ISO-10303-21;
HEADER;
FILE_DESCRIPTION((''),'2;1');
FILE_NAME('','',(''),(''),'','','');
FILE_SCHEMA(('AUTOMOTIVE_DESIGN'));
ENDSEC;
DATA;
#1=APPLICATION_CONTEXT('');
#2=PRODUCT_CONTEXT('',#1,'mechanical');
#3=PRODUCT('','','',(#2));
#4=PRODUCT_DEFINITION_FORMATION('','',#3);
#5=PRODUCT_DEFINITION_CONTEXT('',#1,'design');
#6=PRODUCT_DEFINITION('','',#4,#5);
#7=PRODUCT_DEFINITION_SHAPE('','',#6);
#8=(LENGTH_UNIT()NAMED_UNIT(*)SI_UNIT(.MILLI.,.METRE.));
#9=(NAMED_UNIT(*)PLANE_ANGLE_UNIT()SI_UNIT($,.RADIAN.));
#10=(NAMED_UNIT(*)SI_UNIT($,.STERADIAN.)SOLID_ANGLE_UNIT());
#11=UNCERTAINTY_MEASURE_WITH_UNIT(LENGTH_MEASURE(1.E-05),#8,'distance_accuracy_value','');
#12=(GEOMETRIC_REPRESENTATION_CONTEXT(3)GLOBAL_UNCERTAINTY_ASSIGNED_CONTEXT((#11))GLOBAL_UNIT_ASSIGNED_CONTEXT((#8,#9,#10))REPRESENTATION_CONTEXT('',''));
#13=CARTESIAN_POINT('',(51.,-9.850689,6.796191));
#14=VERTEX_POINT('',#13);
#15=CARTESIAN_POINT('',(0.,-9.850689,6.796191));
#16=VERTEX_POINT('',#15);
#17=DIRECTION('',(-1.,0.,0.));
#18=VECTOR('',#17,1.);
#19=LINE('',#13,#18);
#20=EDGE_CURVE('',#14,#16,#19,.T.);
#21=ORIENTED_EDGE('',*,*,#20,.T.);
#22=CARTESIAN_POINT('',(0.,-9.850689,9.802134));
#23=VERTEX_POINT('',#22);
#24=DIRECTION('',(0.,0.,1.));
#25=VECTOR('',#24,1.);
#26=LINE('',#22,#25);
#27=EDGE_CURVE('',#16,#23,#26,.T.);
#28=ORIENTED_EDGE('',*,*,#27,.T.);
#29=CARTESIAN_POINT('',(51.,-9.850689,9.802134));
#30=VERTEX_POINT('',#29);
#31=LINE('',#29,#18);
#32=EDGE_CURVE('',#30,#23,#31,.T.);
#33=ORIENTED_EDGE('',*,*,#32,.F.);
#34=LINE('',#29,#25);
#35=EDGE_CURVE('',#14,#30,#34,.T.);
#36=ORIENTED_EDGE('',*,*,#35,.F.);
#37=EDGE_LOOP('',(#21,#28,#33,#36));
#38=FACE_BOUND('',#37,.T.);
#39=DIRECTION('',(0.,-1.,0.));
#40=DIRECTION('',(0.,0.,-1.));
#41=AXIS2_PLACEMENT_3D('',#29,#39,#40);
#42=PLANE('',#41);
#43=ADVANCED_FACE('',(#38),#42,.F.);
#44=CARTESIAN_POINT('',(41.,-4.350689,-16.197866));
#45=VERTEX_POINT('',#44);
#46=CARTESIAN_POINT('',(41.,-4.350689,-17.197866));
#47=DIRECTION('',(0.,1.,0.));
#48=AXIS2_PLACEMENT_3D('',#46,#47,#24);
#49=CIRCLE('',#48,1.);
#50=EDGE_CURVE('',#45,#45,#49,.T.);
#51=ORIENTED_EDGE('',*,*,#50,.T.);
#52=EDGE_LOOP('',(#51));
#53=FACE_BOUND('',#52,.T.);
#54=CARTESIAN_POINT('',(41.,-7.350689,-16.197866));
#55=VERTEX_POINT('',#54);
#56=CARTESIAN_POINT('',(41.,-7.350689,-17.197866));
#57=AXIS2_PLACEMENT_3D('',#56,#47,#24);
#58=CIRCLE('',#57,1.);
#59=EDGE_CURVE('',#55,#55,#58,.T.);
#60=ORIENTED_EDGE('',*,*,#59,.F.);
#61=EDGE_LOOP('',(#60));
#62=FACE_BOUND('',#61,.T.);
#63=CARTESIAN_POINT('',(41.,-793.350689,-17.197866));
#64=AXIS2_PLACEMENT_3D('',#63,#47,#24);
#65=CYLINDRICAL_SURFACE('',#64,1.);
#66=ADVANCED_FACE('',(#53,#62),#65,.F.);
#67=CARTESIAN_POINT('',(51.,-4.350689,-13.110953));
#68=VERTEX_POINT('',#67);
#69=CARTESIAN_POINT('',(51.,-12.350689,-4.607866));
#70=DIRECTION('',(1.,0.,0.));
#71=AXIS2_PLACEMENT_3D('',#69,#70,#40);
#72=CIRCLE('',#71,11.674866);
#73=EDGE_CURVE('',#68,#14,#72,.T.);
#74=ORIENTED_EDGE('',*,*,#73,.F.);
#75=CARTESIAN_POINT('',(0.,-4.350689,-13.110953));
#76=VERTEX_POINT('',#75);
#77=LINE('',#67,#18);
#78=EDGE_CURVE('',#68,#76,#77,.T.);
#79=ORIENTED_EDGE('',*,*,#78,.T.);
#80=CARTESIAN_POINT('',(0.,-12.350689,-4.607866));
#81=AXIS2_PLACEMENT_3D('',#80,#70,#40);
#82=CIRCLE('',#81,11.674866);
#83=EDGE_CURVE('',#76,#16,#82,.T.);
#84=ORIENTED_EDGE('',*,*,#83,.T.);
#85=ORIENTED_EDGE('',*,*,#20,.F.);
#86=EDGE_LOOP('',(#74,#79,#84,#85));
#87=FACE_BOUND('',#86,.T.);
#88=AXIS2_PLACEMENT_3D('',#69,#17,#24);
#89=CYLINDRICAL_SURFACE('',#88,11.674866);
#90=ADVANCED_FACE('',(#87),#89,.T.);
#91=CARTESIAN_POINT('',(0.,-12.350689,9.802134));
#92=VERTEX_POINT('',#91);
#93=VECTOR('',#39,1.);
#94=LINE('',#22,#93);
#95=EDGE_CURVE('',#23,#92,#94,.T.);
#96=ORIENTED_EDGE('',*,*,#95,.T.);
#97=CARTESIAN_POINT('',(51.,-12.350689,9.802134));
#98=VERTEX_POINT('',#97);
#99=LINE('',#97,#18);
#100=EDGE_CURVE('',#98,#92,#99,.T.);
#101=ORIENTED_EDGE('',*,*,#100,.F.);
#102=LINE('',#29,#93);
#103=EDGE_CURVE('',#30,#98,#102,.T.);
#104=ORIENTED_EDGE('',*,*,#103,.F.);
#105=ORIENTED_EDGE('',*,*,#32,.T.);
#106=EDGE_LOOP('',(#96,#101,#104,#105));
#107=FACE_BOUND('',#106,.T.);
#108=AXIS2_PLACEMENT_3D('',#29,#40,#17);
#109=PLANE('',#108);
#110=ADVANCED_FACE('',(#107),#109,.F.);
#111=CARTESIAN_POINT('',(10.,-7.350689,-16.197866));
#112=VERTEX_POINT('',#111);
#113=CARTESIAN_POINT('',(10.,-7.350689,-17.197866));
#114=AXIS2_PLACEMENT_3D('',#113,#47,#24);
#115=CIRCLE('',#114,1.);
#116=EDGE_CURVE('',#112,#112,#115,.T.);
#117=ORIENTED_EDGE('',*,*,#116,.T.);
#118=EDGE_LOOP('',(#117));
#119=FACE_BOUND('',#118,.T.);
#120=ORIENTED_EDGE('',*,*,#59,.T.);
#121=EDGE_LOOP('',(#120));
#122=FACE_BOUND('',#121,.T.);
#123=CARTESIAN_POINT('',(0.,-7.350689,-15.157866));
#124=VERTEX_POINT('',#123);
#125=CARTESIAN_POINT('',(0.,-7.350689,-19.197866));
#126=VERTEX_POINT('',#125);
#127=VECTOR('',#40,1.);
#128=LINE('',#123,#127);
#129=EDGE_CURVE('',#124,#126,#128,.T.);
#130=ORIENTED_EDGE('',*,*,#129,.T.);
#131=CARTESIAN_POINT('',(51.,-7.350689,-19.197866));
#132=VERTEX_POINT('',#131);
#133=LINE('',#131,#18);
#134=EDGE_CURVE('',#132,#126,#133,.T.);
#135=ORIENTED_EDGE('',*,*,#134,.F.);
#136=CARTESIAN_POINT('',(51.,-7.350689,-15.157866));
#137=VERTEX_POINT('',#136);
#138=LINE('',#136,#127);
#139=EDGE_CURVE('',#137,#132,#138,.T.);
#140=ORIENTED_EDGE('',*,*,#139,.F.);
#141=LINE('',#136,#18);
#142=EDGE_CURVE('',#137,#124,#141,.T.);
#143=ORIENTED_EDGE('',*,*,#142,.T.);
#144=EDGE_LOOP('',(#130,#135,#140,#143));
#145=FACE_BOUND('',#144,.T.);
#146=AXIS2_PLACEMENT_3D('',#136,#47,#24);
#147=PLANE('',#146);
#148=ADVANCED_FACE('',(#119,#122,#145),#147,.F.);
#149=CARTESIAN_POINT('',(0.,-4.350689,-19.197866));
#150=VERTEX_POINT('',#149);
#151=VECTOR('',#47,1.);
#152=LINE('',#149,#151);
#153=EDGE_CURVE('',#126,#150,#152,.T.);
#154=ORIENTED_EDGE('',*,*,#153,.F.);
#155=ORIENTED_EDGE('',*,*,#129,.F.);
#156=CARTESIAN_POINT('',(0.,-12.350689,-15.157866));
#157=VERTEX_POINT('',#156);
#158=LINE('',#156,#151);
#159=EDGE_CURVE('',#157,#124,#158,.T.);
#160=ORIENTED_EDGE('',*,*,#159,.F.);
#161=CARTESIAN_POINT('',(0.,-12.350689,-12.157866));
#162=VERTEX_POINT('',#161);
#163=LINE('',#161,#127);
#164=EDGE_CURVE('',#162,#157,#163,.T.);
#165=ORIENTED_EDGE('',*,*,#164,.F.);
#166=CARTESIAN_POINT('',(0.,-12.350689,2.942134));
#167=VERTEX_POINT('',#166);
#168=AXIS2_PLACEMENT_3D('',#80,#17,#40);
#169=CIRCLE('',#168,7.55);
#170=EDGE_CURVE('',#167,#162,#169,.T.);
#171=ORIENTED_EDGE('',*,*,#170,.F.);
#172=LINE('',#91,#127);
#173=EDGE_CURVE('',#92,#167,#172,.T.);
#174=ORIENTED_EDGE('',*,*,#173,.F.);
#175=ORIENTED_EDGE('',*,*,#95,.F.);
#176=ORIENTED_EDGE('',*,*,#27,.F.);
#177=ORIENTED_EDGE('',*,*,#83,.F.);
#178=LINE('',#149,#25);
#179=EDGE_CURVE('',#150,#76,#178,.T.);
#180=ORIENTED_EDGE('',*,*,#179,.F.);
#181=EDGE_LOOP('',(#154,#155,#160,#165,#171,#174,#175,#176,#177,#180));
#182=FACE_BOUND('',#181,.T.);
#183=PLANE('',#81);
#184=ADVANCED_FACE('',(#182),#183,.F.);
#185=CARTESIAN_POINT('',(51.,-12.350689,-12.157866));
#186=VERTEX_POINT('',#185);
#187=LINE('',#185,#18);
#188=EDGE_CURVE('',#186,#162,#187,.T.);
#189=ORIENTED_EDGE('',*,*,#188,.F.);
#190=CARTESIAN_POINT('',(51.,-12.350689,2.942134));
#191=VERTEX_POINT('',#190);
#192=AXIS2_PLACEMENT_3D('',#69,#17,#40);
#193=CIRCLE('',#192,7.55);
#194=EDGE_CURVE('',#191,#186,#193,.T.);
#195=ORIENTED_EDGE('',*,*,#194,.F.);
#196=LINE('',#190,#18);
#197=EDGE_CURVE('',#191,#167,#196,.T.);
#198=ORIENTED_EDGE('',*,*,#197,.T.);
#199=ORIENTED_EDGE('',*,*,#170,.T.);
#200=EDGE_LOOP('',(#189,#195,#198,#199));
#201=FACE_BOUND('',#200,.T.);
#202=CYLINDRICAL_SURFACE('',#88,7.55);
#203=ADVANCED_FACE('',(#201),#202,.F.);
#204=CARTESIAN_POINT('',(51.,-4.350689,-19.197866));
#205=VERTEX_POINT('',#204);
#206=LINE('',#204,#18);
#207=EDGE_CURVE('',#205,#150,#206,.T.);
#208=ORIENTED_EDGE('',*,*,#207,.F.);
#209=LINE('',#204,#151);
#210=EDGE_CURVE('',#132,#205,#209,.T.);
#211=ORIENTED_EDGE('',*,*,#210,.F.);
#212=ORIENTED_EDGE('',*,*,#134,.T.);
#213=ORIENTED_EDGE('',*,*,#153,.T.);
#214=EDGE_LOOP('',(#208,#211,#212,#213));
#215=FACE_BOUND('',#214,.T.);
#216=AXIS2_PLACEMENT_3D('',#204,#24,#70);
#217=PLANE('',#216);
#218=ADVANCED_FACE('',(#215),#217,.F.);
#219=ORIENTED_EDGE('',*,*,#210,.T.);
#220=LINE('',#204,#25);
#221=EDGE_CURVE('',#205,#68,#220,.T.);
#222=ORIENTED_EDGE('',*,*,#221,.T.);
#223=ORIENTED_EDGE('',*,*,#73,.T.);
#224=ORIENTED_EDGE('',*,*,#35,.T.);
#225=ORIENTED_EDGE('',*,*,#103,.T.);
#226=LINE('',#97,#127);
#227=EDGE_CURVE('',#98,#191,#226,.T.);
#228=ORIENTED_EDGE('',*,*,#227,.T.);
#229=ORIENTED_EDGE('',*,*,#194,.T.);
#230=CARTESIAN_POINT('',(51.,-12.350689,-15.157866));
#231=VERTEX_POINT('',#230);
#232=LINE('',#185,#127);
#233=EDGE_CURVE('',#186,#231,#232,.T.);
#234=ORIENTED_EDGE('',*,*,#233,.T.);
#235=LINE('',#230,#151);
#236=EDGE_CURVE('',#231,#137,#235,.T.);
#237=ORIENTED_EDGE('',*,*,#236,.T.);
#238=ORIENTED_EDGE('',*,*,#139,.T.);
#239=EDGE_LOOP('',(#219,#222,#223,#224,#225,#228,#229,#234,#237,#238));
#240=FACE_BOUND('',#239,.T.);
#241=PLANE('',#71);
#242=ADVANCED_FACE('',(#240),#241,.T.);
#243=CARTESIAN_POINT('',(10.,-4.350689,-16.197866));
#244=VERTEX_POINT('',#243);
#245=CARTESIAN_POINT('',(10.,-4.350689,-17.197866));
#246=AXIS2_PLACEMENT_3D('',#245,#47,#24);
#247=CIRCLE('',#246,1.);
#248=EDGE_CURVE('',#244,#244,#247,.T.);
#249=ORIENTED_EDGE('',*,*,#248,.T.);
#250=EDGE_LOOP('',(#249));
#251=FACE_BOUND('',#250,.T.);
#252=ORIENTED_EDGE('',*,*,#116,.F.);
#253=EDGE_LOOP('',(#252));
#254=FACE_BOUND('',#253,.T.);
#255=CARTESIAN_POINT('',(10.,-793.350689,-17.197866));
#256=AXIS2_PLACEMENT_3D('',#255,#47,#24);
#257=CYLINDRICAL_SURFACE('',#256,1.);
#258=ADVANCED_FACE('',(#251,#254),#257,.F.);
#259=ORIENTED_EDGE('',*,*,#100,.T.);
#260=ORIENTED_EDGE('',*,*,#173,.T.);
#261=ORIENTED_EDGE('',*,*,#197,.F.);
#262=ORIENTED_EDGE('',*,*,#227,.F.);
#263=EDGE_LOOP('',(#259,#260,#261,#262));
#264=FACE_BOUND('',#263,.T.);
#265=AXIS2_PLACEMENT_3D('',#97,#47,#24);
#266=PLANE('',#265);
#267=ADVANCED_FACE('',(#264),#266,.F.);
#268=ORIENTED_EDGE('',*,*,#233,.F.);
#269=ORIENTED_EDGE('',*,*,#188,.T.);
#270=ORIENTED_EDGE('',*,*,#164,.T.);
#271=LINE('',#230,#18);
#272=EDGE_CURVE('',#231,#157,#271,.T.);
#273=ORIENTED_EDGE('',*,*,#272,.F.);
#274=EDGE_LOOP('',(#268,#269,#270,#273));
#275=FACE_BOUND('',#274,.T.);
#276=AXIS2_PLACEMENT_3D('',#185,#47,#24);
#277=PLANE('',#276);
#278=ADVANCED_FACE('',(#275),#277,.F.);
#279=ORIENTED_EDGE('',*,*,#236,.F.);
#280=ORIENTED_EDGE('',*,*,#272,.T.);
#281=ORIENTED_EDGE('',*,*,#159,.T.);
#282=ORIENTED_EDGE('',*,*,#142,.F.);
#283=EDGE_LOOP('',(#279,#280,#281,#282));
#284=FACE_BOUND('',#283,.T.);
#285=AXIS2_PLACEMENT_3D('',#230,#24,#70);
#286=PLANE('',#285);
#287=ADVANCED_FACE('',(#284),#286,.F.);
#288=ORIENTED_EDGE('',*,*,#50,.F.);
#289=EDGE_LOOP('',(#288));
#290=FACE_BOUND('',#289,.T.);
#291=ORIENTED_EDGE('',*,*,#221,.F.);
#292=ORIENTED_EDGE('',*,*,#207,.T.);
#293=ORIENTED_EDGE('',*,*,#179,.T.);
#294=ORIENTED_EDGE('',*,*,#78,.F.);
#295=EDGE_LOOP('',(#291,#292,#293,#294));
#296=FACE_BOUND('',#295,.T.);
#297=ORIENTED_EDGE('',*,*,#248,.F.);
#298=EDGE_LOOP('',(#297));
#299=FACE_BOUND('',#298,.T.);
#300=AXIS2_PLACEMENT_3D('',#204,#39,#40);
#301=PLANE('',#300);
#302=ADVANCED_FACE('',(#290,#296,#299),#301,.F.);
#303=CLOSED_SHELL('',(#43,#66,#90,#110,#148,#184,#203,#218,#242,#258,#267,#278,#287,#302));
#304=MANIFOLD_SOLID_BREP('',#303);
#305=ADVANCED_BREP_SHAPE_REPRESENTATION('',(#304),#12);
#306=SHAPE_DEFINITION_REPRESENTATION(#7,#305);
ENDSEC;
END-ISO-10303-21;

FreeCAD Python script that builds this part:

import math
import FreeCAD as App
import Part
import Sketcher

V = App.Vector
Q = App.Units.Quantity

doc = App.newDocument("Part")
body = doc.addObject("PartDesign::Body", "Body")

# Sketch on YZ plane
sketch1 = body.newObject("Sketcher::SketchObject", "Sketch")
sketch1.AttachmentSupport = (doc.getObject("YZ_Plane"), [""])
sketch1.MapMode = "FlatFace"
sketch1.addGeometry(Part.LineSegment(V(-12.4, -12.2, 0), V(-12.4, -15.2, 0)), False)
sketch1.addGeometry(Part.LineSegment(V(-12.4, -15.2, 0), V(-7.4, -15.2, 0)), False)
sketch1.addGeometry(Part.LineSegment(V(-7.4, -15.2, 0), V(-7.4, -19.2, 0)), False)
sketch1.addGeometry(Part.LineSegment(V(-7.4, -19.2, 0), V(-4.4, -19.2, 0)), False)
sketch1.addGeometry(Part.LineSegment(V(-4.4, -19.2, 0), V(-4.4, -13.1, 0)), False)
sketch1.addGeometry(Part.ArcOfCircle(Part.Circle(V(-12.4, -4.6, 0), V(0, 0, 1), 11.7), math.radians(-47), math.radians(78)), False)
sketch1.addGeometry(Part.LineSegment(V(-9.9, 6.8, 0), V(-9.9, 9.8, 0)), False)
sketch1.addGeometry(Part.LineSegment(V(-9.9, 9.8, 0), V(-12.4, 9.8, 0)), False)
sketch1.addGeometry(Part.LineSegment(V(-12.4, 9.8, 0), V(-12.4, 2.9, 0)), False)
sketch1.addGeometry(Part.ArcOfCircle(Part.Circle(V(-12.4, -4.6, 0), V(0, 0, 1), 7.5), math.radians(-90), math.radians(90)), False)
sketch1.addConstraint(Sketcher.Constraint("Coincident", 0, 2, 1, 1))
sketch1.addConstraint(Sketcher.Constraint("Coincident", 1, 2, 2, 1))
sketch1.addConstraint(Sketcher.Constraint("Coincident", 2, 2, 3, 1))
sketch1.addConstraint(Sketcher.Constraint("Coincident", 3, 2, 4, 1))
sketch1.addConstraint(Sketcher.Constraint("Coincident", 4, 2, 5, 1))
sketch1.addConstraint(Sketcher.Constraint("Coincident", 5, 2, 6, 1))
sketch1.addConstraint(Sketcher.Constraint("Coincident", 6, 2, 7, 1))
sketch1.addConstraint(Sketcher.Constraint("Coincident", 7, 2, 8, 1))
sketch1.addConstraint(Sketcher.Constraint("Coincident", 8, 2, 9, 2))
sketch1.addConstraint(Sketcher.Constraint("Coincident", 9, 1, 0, 1))
sketch1.addConstraint(Sketcher.Constraint("Vertical", 0))
sketch1.addConstraint(Sketcher.Constraint("Horizontal", 1))
sketch1.addConstraint(Sketcher.Constraint("Vertical", 2))
sketch1.addConstraint(Sketcher.Constraint("Horizontal", 3))
sketch1.addConstraint(Sketcher.Constraint("Vertical", 4))
sketch1.addConstraint(Sketcher.Constraint("Vertical", 6))
sketch1.addConstraint(Sketcher.Constraint("Horizontal", 7))
sketch1.addConstraint(Sketcher.Constraint("Vertical", 8))
sketch1.addConstraint(Sketcher.Constraint("Coincident", 9, 3, 5, 3))
sketch1.addConstraint(Sketcher.Constraint("Vertical", 9, 3, 0, 2))
sketch1.addConstraint(Sketcher.Constraint("Vertical", 0, 2, 7, 2))
sketch1.addConstraint(Sketcher.Constraint("Equal", 3, 0))
sketch1.addConstraint(Sketcher.Constraint("DistanceX", 1, 1, 1, 2, Q("5 mm")))
sketch1.addConstraint(Sketcher.Constraint("DistanceX", 3, 1, 3, 2, Q("3 mm")))
sketch1.addConstraint(Sketcher.Constraint("Radius", 9, Q("7.55 mm")))
sketch1.addConstraint(Sketcher.Constraint("DistanceX", 7, 2, 7, 1, Q("2.5 mm")))
sketch1.addConstraint(Sketcher.Constraint("DistanceY", 2, 2, 2, 1, Q("4.04 mm")))
sketch1.addConstraint(Sketcher.Constraint("DistanceY", 8, 2, 8, 1, Q("6.86 mm")))
sketch1.addConstraint(Sketcher.Constraint("Radius", 5, Q("11.674866 mm")))
sketch1.addConstraint(Sketcher.Constraint("DistanceX", 5, 3, -1, 1, Q("12.350689 mm")))
sketch1.addConstraint(Sketcher.Constraint("DistanceY", -1, 1, 5, 2, Q("6.796191 mm")))
pad1 = body.newObject("PartDesign::Pad", "Pad")
pad1.Profile = sketch1
pad1.Length = 51

# Sketch on XZ plane
sketch2 = body.newObject("Sketcher::SketchObject", "Sketch001")
sketch2.AttachmentSupport = (doc.getObject("XZ_Plane"), [""])
sketch2.MapMode = "FlatFace"
sketch2.AttachmentOffset = App.Placement(V(0, 0, 4.350689), App.Rotation())
sketch2.addGeometry(Part.Circle(V(10, -17.2, 0), V(0, 0, 1), 1), False)
sketch2.addGeometry(Part.Circle(V(41, -17.2, 0), V(0, 0, 1), 1), False)
sketch2.addConstraint(Sketcher.Constraint("Equal", 0, 1))
sketch2.addConstraint(Sketcher.Constraint("Horizontal", 0, 3, 1, 3))
sketch2.addConstraint(Sketcher.Constraint("Diameter", 0, Q("2 mm")))
sketch2.addConstraint(Sketcher.Constraint("DistanceX", -1, 1, 0, 3, Q("10 mm")))
sketch2.addConstraint(Sketcher.Constraint("DistanceX", -1, 1, 1, 3, Q("41 mm")))
sketch2.addConstraint(Sketcher.Constraint("DistanceY", 0, 3, -1, 1, Q("17.197866 mm")))
pocket1 = body.newObject("PartDesign::Pocket", "Pocket")
pocket1.Profile = sketch2
pocket1.Length = 789
pocket1.Reversed = True

doc.recompute()
